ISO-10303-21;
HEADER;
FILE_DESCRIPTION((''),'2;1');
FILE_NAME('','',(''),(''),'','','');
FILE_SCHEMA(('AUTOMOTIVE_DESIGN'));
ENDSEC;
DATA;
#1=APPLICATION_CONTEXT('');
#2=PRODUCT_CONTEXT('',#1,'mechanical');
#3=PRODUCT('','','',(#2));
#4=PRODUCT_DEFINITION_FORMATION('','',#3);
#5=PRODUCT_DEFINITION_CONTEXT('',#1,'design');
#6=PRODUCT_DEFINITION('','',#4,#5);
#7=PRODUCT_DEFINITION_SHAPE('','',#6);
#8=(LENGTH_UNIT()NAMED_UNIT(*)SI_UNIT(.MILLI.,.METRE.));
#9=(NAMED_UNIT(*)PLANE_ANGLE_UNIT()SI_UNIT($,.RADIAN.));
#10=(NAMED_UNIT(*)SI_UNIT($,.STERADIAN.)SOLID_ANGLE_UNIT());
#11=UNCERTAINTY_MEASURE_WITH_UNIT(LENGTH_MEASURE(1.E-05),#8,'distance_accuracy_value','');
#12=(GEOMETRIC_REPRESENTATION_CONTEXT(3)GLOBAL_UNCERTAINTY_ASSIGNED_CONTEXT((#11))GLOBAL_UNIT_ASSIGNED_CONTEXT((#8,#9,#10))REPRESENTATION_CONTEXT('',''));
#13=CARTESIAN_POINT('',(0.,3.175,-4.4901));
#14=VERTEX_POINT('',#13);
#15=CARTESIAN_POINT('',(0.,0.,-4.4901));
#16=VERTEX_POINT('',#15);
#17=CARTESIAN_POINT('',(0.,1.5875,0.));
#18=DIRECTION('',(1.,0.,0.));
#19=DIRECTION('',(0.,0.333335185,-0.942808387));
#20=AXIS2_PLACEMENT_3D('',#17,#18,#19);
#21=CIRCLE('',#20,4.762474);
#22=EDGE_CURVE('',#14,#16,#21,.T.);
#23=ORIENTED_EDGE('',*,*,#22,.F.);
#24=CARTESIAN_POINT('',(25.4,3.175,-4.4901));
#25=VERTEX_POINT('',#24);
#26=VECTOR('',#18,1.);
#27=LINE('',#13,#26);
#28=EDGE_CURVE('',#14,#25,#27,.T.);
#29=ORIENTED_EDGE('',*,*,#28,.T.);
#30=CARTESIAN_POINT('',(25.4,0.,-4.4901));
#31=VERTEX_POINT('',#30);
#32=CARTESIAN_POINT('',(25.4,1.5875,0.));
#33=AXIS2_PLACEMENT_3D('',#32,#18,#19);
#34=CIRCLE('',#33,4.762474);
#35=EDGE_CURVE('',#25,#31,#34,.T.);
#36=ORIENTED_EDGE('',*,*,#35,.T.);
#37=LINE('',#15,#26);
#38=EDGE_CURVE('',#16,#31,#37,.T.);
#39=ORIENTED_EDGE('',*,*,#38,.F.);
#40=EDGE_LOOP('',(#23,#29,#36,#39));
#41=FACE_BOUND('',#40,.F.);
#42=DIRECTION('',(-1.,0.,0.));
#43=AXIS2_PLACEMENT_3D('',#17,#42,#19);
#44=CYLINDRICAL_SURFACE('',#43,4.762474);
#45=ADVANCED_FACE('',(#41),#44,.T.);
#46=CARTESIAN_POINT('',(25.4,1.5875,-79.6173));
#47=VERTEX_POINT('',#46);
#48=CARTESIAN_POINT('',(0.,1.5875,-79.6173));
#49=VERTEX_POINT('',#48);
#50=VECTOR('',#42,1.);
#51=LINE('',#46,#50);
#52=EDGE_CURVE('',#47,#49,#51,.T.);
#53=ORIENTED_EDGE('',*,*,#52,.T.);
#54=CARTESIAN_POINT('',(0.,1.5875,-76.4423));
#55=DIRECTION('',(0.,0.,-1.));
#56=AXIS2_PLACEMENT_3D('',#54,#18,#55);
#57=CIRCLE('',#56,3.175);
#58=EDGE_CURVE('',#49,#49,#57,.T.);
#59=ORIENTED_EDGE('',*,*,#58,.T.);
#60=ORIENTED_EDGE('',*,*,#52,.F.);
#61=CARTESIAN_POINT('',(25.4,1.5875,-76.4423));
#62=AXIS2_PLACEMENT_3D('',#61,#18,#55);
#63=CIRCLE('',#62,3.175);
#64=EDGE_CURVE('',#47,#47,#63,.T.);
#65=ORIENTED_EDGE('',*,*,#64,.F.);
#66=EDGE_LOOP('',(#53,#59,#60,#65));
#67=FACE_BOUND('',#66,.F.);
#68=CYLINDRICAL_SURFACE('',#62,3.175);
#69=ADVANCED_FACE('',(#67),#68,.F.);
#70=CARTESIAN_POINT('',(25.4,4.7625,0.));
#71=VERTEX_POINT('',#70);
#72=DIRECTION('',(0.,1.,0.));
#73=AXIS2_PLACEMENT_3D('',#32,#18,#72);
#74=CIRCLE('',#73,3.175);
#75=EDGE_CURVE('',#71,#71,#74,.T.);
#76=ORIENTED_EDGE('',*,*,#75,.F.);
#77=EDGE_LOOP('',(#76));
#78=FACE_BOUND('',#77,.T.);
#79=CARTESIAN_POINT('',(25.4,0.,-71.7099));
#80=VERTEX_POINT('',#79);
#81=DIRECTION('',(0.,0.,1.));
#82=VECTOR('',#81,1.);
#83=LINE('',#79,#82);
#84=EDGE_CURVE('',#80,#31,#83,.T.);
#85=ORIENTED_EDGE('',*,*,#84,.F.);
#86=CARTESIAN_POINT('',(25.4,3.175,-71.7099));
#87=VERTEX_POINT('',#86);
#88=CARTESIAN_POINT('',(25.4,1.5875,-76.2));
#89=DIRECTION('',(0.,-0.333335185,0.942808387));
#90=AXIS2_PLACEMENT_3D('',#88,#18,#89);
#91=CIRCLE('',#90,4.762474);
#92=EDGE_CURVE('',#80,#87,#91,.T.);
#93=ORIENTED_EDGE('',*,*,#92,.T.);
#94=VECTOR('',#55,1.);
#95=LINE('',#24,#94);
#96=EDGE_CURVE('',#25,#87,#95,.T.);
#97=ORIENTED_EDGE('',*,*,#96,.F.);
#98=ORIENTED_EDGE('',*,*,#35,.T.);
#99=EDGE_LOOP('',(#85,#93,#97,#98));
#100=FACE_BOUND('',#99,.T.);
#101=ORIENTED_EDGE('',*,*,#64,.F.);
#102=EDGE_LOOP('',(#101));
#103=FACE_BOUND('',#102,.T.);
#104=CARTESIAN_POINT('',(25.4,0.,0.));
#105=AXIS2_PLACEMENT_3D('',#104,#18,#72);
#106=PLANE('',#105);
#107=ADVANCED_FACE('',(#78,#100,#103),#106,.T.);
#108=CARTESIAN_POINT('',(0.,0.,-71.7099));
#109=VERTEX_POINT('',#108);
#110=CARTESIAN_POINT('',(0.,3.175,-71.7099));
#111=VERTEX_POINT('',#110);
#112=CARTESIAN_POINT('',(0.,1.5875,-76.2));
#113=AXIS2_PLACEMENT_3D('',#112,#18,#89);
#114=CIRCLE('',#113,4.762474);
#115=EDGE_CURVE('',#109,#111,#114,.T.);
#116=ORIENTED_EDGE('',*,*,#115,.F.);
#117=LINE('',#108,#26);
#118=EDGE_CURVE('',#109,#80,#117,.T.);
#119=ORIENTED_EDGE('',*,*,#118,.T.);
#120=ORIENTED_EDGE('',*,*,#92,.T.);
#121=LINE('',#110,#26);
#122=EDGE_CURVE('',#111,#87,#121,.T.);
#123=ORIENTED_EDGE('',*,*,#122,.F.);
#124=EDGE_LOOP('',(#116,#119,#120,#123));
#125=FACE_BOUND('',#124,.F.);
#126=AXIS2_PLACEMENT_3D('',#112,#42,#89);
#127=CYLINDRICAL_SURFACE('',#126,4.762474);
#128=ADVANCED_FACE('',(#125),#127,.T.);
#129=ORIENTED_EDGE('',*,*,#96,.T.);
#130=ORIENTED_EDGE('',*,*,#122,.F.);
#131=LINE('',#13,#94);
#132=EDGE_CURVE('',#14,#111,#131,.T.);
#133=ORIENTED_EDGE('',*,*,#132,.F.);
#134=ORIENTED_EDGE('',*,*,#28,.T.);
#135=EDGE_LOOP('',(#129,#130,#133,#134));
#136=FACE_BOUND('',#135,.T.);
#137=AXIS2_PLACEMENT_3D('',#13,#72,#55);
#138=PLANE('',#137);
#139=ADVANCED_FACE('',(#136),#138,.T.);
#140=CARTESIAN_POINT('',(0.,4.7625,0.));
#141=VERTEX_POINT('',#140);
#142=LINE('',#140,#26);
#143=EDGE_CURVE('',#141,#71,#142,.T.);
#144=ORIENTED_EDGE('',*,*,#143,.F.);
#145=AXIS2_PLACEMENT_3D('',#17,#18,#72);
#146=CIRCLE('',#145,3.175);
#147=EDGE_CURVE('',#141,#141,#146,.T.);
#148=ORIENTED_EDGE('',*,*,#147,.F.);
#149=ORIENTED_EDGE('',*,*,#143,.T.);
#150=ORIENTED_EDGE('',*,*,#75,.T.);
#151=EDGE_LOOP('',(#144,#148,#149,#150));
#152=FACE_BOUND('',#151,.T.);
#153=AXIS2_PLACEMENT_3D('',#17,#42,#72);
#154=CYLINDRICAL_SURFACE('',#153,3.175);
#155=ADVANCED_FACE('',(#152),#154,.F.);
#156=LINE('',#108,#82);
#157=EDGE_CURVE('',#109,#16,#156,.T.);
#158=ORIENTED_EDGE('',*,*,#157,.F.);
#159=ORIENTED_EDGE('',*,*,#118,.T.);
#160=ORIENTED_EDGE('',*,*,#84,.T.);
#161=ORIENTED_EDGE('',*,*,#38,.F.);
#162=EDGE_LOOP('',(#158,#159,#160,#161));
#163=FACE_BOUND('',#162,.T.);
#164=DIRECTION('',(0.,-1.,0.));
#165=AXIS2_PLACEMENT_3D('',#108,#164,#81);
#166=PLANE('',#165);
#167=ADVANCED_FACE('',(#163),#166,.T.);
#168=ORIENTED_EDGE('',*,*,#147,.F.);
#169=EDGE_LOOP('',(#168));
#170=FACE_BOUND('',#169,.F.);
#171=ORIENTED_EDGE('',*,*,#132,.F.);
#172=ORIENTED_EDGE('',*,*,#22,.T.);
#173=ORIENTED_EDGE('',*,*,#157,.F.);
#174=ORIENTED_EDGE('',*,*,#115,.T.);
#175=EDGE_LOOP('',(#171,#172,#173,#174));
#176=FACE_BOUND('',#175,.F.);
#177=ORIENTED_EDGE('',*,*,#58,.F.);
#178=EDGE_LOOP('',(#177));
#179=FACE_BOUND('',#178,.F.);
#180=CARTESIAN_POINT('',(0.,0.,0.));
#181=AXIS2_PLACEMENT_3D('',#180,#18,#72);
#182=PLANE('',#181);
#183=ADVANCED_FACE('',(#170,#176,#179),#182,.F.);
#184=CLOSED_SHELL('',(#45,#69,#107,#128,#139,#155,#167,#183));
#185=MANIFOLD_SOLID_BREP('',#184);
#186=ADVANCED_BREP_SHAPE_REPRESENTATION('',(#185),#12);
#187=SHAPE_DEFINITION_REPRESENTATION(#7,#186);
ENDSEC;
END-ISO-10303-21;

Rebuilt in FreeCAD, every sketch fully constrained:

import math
import FreeCAD as App
import Part
import Sketcher
from FreeCAD import Vector
Q = App.Units.Quantity

doc = App.newDocument("Part")
body = doc.addObject("PartDesign::Body", "Body")

# Sketch on YZ plane
sketch1 = body.newObject("Sketcher::SketchObject", "Sketch")
sketch1.AttachmentSupport = (doc.getObject("YZ_Plane"), [""])
sketch1.MapMode = "FlatFace"
sketch1.addGeometry([
    Part.LineSegment(Vector(3.2, -71.7, 0), Vector(3.2, -4.5, 0)),  # 0
    Part.ArcOfCircle(Part.Circle(Vector(1.6, 0, 0), Vector(0, 0, 1), 4.8), math.radians(-71), math.radians(251)),  # 1
    Part.LineSegment(Vector(0, -4.5, 0), Vector(0, -71.7, 0)),  # 2
    Part.ArcOfCircle(Part.Circle(Vector(1.6, -76.2, 0), Vector(0, 0, 1), 4.8), math.radians(109), math.radians(431)),  # 3
    Part.Circle(Vector(1.6, 0, 0), Vector(0, 0, 1), 3.2),  # 4
], False)
sketch1.addConstraint([
    Sketcher.Constraint("Coincident", 0, 2, 1, 1),
    Sketcher.Constraint("Coincident", 1, 2, 2, 1),
    Sketcher.Constraint("Coincident", 2, 2, 3, 1),
    Sketcher.Constraint("Coincident", 3, 2, 0, 1),
    Sketcher.Constraint("Vertical", 0),
    Sketcher.Constraint("Vertical", 2),
    Sketcher.Constraint("Coincident", 4, 3, 1, 3),
    Sketcher.Constraint("Equal", 1, 3),
    Sketcher.Constraint("PointOnObject", 1, 3, -1),
    Sketcher.Constraint("PointOnObject", 1, 2, -2),
    Sketcher.Constraint("Horizontal", 0, 2, 1, 2),
    Sketcher.Constraint("Horizontal", 2, 2, 3, 2),
    Sketcher.Constraint("Diameter", 4, Q("0.25 in")),
    Sketcher.Constraint("DistanceX", -1, 1, 1, 3, Q("0.0625 in")),
    Sketcher.Constraint("DistanceY", 3, 3, -1, 1, Q("3 in")),
    Sketcher.Constraint("Radius", 1, Q("0.1875 in")),
])
pad1 = body.newObject("PartDesign::Pad", "Pad")
pad1.Profile = sketch1
pad1.Length = Q("1 in")

# Sketch on YZ plane
sketch2 = body.newObject("Sketcher::SketchObject", "Sketch001")
sketch2.AttachmentSupport = (doc.getObject("YZ_Plane"), [""])
sketch2.MapMode = "FlatFace"
sketch2.AttachmentOffset = App.Placement(Vector(0, 0, 1 * 25.4), App.Rotation())
sketch2.addGeometry(Part.Circle(Vector(1.6, -76.4, 0), Vector(0, 0, 1), 3.2), False)
sketch2.addConstraint([
    Sketcher.Constraint("Diameter", 0, Q("0.25 in")),
    Sketcher.Constraint("DistanceX", -1, 1, 0, 3, Q("0.0625 in")),
    Sketcher.Constraint("DistanceY", 0, 3, -1, 1, 76.4423),
])
pocket1 = body.newObject("PartDesign::Pocket", "Pocket")
pocket1.Profile = sketch2
pocket1.Type = "ThroughAll"

doc.recompute()
